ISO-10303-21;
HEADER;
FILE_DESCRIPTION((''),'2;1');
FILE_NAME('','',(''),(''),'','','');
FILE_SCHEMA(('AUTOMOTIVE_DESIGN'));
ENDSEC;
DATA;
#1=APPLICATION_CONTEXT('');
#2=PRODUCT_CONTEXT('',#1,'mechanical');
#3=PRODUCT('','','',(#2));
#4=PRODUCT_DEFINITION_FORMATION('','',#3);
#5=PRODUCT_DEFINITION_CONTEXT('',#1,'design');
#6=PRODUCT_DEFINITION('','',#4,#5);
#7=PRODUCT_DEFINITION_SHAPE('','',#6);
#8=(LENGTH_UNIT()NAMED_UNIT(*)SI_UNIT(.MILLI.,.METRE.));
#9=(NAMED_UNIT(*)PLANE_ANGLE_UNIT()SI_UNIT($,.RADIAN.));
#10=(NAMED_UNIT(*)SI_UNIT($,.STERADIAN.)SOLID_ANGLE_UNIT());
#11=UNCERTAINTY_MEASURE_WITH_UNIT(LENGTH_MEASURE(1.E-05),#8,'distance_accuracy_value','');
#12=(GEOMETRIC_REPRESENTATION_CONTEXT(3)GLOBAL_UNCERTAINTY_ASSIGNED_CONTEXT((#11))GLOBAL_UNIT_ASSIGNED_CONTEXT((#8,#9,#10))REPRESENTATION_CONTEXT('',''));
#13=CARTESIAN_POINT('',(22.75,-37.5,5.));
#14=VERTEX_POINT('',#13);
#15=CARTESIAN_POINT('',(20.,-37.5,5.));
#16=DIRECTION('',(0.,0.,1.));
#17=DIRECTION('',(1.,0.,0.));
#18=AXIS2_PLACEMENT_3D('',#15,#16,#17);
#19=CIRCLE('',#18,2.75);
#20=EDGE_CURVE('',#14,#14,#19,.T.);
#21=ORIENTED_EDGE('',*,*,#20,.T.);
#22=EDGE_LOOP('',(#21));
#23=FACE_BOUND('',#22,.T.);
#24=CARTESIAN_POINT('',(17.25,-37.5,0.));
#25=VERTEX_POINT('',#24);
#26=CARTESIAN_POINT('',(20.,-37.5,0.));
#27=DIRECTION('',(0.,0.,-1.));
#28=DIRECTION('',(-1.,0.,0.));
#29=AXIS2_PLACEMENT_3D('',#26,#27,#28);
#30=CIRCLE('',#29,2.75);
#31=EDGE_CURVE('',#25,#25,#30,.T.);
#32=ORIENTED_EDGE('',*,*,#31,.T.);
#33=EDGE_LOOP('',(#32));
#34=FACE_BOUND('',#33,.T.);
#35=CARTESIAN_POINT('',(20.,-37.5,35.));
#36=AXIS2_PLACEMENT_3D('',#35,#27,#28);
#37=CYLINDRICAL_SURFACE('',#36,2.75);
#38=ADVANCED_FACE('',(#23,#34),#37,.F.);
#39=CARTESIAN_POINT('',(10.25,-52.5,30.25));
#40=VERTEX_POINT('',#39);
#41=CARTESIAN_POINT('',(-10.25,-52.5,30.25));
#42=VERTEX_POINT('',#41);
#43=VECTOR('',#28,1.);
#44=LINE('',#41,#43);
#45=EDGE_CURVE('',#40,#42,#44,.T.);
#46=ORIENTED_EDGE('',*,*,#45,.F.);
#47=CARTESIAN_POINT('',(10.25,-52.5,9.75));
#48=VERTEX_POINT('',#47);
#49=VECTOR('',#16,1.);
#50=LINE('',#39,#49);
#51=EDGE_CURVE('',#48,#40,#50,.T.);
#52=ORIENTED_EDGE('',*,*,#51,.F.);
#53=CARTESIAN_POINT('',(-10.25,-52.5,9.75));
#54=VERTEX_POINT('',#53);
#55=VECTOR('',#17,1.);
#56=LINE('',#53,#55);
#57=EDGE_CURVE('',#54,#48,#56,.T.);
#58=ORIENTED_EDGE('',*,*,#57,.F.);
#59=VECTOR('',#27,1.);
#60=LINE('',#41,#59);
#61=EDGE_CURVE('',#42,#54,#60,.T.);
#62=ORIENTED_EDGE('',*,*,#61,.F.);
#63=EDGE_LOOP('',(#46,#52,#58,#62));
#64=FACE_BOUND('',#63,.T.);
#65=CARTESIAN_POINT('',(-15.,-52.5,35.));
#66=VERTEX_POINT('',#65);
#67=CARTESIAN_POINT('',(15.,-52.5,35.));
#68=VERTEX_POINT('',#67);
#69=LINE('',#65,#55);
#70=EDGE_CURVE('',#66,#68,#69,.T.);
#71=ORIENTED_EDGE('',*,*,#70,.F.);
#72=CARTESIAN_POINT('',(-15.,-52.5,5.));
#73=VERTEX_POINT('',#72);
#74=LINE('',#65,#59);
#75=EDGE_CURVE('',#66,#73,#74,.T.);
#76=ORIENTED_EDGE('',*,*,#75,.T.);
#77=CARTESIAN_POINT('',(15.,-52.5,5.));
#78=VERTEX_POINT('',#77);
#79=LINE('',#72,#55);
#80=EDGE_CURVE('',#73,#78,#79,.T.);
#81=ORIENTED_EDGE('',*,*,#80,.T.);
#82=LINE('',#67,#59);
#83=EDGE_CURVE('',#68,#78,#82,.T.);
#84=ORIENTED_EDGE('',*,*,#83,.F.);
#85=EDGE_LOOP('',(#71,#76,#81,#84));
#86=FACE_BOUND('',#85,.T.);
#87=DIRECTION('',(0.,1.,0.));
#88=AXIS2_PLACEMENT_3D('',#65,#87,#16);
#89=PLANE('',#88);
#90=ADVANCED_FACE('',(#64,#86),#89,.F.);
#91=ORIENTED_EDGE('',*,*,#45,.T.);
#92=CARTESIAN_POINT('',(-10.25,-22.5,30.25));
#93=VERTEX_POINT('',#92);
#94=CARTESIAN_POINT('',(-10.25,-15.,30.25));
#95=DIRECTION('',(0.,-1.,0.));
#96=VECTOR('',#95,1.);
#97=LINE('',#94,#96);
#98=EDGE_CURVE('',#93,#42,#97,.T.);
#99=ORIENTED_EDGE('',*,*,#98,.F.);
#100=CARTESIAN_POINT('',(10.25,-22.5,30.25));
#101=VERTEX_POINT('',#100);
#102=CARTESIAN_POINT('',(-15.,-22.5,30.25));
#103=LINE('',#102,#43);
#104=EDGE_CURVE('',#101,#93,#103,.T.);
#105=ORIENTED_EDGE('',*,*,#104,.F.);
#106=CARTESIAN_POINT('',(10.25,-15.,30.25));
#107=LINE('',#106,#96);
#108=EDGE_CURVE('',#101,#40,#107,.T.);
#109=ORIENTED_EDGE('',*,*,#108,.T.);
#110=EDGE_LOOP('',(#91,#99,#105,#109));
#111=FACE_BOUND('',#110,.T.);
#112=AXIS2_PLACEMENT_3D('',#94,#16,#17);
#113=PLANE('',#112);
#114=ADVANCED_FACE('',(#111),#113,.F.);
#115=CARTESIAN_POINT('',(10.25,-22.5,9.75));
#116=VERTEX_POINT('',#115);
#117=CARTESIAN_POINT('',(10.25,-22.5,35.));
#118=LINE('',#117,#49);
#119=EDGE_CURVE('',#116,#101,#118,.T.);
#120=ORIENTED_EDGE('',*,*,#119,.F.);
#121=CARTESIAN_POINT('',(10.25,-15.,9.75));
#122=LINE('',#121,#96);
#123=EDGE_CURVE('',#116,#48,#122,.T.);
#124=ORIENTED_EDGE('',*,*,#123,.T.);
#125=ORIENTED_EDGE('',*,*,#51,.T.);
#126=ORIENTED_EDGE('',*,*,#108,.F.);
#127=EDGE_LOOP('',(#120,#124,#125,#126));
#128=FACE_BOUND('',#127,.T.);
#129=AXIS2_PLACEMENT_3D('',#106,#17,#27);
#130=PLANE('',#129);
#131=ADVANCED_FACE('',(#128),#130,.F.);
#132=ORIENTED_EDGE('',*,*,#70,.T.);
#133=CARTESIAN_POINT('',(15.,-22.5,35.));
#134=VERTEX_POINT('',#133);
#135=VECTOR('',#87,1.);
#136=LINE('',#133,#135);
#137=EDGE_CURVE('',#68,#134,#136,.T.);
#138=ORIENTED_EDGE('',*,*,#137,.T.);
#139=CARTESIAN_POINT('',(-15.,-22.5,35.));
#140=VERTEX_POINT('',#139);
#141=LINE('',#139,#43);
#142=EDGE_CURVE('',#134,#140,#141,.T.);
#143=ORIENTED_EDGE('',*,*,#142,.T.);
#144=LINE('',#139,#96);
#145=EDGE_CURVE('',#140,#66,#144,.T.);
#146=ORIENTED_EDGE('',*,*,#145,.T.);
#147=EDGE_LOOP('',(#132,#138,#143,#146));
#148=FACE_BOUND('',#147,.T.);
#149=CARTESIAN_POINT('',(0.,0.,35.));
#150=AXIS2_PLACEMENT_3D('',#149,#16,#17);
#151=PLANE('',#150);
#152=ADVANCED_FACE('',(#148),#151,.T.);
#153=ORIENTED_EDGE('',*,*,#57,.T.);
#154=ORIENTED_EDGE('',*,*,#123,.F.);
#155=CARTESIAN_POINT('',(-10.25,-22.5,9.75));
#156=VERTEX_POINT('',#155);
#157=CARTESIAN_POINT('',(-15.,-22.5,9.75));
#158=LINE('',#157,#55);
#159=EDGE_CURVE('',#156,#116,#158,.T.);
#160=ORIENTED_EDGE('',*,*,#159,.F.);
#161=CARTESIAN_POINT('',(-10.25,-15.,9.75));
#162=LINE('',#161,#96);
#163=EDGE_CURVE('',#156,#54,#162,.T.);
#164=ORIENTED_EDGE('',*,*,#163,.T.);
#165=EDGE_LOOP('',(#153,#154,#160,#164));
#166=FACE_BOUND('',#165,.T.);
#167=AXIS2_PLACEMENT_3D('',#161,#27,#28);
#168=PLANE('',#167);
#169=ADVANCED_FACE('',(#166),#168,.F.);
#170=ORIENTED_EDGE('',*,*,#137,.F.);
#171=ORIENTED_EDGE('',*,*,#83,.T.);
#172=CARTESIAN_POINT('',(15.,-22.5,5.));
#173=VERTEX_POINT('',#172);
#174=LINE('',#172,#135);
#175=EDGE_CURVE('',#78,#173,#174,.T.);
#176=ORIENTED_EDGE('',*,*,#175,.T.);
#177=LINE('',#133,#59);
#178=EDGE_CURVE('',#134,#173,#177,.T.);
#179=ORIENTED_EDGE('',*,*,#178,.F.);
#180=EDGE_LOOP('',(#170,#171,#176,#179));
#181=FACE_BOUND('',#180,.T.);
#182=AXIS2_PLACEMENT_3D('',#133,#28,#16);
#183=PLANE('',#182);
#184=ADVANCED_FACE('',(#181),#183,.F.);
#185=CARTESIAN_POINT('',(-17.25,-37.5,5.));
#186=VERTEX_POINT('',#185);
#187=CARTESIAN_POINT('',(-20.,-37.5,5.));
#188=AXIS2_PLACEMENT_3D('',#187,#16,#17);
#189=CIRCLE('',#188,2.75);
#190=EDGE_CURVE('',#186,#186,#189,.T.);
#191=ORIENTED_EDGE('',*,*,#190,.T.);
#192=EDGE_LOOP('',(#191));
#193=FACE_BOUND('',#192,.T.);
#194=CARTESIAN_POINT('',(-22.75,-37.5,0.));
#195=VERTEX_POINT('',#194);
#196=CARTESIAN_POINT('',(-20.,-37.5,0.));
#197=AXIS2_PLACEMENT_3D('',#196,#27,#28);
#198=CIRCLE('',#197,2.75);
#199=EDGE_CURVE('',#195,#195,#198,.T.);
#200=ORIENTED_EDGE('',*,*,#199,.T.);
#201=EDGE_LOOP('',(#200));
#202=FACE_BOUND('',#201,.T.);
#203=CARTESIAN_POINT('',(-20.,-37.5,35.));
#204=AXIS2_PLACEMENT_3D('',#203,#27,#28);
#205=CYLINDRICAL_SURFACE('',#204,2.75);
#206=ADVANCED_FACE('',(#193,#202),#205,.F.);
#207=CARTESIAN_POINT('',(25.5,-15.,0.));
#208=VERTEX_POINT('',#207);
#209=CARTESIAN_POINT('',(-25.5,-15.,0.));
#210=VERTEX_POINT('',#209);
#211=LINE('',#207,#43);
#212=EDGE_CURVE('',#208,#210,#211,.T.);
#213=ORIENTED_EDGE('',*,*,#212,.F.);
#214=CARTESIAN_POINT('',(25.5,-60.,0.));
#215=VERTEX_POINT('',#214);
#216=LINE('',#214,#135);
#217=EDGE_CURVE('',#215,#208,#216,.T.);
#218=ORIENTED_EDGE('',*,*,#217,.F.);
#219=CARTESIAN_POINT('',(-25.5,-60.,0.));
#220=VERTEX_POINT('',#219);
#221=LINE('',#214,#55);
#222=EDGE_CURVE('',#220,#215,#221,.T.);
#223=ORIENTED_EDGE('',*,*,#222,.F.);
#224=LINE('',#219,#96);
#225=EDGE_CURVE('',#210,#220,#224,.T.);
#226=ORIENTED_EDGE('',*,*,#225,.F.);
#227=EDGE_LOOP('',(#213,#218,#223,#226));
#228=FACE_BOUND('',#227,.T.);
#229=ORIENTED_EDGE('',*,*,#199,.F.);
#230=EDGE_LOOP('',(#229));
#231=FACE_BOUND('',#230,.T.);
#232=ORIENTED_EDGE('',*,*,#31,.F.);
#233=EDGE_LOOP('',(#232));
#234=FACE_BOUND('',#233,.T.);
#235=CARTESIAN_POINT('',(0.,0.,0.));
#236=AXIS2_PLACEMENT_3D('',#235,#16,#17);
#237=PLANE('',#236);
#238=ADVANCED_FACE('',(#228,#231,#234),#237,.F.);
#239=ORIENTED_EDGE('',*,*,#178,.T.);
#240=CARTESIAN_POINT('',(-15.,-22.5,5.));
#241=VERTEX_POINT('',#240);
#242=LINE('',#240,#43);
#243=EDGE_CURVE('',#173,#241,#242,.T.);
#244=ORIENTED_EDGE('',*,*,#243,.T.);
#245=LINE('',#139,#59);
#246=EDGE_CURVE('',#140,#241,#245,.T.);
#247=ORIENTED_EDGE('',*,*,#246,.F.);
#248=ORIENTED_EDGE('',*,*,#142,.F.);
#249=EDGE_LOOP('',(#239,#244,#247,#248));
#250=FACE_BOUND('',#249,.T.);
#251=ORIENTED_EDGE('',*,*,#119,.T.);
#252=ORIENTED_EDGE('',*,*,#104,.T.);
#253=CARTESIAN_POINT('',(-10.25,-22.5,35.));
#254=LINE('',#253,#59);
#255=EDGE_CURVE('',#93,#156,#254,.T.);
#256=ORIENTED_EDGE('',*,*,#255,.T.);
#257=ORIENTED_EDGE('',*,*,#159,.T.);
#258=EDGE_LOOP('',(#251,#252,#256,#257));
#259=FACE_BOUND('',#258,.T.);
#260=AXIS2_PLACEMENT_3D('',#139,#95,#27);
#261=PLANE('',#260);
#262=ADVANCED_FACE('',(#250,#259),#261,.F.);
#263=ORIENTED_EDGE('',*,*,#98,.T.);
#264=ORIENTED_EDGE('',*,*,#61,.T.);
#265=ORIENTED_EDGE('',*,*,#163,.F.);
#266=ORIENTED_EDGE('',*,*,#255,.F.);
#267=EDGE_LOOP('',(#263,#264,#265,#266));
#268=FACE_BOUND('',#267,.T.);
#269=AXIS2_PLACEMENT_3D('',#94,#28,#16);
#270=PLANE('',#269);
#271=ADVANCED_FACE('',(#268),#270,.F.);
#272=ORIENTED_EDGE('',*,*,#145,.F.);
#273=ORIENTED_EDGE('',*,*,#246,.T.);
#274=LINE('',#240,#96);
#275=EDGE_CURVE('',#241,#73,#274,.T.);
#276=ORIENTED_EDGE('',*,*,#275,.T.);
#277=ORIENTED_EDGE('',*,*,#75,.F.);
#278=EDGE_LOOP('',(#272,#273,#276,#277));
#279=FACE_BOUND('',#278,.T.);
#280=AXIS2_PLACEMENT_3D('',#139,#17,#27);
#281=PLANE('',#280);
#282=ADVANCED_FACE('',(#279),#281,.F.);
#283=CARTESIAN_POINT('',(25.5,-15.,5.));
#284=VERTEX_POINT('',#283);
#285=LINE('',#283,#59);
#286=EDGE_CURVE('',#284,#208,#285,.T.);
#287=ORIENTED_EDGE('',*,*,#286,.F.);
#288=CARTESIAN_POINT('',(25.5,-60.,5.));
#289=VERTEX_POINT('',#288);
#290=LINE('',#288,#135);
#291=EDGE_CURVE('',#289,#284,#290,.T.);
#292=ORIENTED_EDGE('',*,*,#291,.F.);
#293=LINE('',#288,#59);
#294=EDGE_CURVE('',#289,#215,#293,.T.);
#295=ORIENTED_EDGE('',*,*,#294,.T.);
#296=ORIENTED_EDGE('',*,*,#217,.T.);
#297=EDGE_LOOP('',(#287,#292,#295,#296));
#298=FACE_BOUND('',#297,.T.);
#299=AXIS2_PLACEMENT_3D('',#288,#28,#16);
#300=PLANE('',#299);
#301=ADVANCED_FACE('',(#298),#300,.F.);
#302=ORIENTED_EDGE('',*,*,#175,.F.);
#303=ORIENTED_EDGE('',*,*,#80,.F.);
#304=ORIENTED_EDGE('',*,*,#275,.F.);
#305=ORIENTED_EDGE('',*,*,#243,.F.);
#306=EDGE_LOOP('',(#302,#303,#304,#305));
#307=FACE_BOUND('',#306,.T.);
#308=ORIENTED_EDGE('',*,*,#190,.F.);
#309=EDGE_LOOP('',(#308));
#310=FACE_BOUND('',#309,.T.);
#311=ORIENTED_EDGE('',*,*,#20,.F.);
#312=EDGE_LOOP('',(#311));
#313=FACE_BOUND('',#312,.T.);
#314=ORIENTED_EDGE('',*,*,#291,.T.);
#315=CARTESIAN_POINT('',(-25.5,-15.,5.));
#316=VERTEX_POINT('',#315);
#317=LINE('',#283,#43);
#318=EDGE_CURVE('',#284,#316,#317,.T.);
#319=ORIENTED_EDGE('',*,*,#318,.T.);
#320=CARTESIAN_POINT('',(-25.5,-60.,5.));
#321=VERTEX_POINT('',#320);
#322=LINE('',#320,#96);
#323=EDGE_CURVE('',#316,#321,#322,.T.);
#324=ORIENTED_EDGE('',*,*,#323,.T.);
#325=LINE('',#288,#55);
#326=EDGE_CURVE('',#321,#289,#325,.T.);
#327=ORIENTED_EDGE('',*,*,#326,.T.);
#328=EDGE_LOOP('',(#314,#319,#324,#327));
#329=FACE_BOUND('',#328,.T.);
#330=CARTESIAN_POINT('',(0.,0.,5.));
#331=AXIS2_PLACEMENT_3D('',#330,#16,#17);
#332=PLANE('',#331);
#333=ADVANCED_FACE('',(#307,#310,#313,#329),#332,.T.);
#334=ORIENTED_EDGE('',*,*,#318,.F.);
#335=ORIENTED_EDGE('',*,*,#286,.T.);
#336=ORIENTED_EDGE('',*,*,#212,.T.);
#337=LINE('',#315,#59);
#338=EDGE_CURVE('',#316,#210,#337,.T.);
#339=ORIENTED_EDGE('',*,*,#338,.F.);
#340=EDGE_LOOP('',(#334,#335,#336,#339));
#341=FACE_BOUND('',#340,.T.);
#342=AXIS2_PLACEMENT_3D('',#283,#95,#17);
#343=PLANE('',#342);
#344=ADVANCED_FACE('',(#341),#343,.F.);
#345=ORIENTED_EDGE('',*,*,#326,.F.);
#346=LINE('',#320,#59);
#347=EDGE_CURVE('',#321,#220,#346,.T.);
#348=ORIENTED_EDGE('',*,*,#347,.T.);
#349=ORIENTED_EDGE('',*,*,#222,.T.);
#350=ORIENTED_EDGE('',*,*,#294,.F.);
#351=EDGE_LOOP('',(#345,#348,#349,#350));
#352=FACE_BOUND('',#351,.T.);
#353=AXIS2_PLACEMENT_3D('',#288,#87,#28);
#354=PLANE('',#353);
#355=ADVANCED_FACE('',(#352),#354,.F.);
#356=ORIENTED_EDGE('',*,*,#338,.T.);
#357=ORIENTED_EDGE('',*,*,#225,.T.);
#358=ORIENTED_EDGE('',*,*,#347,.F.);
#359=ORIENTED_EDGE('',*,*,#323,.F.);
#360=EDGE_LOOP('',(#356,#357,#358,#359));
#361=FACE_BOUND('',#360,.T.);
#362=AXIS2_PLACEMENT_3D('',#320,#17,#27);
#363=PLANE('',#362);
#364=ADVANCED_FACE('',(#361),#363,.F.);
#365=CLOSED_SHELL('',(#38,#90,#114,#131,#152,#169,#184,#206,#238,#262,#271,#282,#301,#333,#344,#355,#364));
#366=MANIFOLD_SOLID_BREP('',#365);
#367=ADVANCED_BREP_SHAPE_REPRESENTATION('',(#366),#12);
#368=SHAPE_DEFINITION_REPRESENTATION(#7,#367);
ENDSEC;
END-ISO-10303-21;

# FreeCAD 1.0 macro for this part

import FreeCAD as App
import Part
import Sketcher


def add_polygon(sketch, points):
    """Adds a closed chain of lines whose ends are joined by coincident constraints."""
    first, n = sketch.GeometryCount, len(points)
    for a, b in zip(points, points[1:] + points[:1]):
        sketch.addGeometry(Part.LineSegment(App.Vector(*a, 0), App.Vector(*b, 0)), False)
    for i in range(n):
        sketch.addConstraint(Sketcher.Constraint("Coincident", first + i, 2, first + (i + 1) % n, 1))

doc = App.newDocument("Part")
params = doc.addObject("Spreadsheet::Sheet", "Params")
for row, (alias, value) in enumerate([
    ("sketch1_width", "51 mm"),
    ("sketch1_height", "45 mm"),
    ("pad1_length", "5 mm"),
    ("sketch2_width", "30 mm"),
    ("pad2_length", "30 mm"),
    ("sketch3_width", "20.5 mm"),
    ("sketch4_diameter", "5.5 mm"),
], start=1):
    params.set(f"A{row}", alias)
    params.set(f"B{row}", "=" + value)
    params.setAlias(f"B{row}", alias)

body = doc.addObject("PartDesign::Body", "Body")

# Sketch on XY plane
sketch1 = doc.addObject("Sketcher::SketchObject", "Sketch")
body.addObject(sketch1)
sketch1.AttachmentSupport = (doc.XY_Plane, [""])
sketch1.MapMode = "FlatFace"
add_polygon(sketch1, [(-26, -15), (-26, -60), (26, -60), (26, -15)])  # lines 0-3
sketch1.addConstraint(Sketcher.Constraint("Vertical", 0))
sketch1.addConstraint(Sketcher.Constraint("Horizontal", 1))
sketch1.addConstraint(Sketcher.Constraint("Vertical", 2))
sketch1.addConstraint(Sketcher.Constraint("Horizontal", 3))
sketch1.addConstraint(Sketcher.Constraint("DistanceX", 1, 1, 1, 2, 51.0))
sketch1.addConstraint(Sketcher.Constraint("DistanceY", 0, 2, 0, 1, 45.0))
sketch1.addConstraint(Sketcher.Constraint("DistanceY", 0, 2, -1, 1, 60.0))
sketch1.addConstraint(Sketcher.Constraint("DistanceX", 0, 2, -1, 1, 25.5))
sketch1.setExpression("Constraints[8]", "Params.sketch1_width")
sketch1.setExpression("Constraints[9]", "Params.sketch1_height")
pad1 = doc.addObject("PartDesign::Pad", "Pad")
body.addObject(pad1)
pad1.Profile = sketch1
pad1.setExpression("Length", "Params.pad1_length")

# Sketch on XY plane
sketch2 = doc.addObject("Sketcher::SketchObject", "Sketch001")
body.addObject(sketch2)
sketch2.AttachmentSupport = (doc.XY_Plane, [""])
sketch2.MapMode = "FlatFace"
sketch2.AttachmentOffset = App.Placement(App.Vector(0, 0, 5), App.Rotation())
add_polygon(sketch2, [(-15, -22), (-15, -52), (15, -52), (15, -22)])  # lines 0-3
sketch2.addConstraint(Sketcher.Constraint("Vertical", 0))
sketch2.addConstraint(Sketcher.Constraint("Horizontal", 1))
sketch2.addConstraint(Sketcher.Constraint("Vertical", 2))
sketch2.addConstraint(Sketcher.Constraint("Horizontal", 3))
sketch2.addConstraint(Sketcher.Constraint("Equal", 3, 0))
sketch2.addConstraint(Sketcher.Constraint("DistanceX", 1, 1, 1, 2, 30.0))
sketch2.addConstraint(Sketcher.Constraint("DistanceX", 0, 2, -1, 1, 15.0))
sketch2.addConstraint(Sketcher.Constraint("DistanceY", 0, 2, -1, 1, 52.5))
sketch2.setExpression("Constraints[9]", "Params.sketch2_width")
pad2 = doc.addObject("PartDesign::Pad", "Pad001")
body.addObject(pad2)
pad2.Profile = sketch2
pad2.setExpression("Length", "Params.pad2_length")

# Sketch on XZ plane
sketch3 = doc.addObject("Sketcher::SketchObject", "Sketch002")
body.addObject(sketch3)
sketch3.AttachmentSupport = (doc.XZ_Plane, [""])
sketch3.MapMode = "FlatFace"
sketch3.AttachmentOffset = App.Placement(App.Vector(0, 0, 52.5), App.Rotation())
add_polygon(sketch3, [(-10, 30), (-10, 10), (10, 10), (10, 30)])  # lines 0-3
sketch3.addConstraint(Sketcher.Constraint("Vertical", 0))
sketch3.addConstraint(Sketcher.Constraint("Horizontal", 1))
sketch3.addConstraint(Sketcher.Constraint("Vertical", 2))
sketch3.addConstraint(Sketcher.Constraint("Horizontal", 3))
sketch3.addConstraint(Sketcher.Constraint("Equal", 3, 0))
sketch3.addConstraint(Sketcher.Constraint("DistanceX", 1, 1, 1, 2, 20.5))
sketch3.addConstraint(Sketcher.Constraint("DistanceX", 0, 2, -1, 1, 10.25))
sketch3.addConstraint(Sketcher.Constraint("DistanceY", -1, 1, 0, 2, 9.75))
sketch3.setExpression("Constraints[9]", "Params.sketch3_width")
pocket1 = doc.addObject("PartDesign::Pocket", "Pocket")
body.addObject(pocket1)
pocket1.Profile = sketch3
pocket1.Type = "ThroughAll"

# Sketch on XY plane
sketch4 = doc.addObject("Sketcher::SketchObject", "Sketch003")
body.addObject(sketch4)
sketch4.AttachmentSupport = (doc.XY_Plane, [""])
sketch4.MapMode = "FlatFace"
sketch4.addGeometry(Part.Circle(App.Vector(-20, -37.5, 0), App.Vector(0, 0, 1), 2.8), False)
sketch4.addGeometry(Part.Circle(App.Vector(20, -37.5, 0), App.Vector(0, 0, 1), 2.8), False)
sketch4.addConstraint(Sketcher.Constraint("Equal", 0, 1))
sketch4.addConstraint(Sketcher.Constraint("Symmetric", 0, 3, 1, 3, -2))
sketch4.addConstraint(Sketcher.Constraint("Diameter", 0, 5.5))
sketch4.addConstraint(Sketcher.Constraint("DistanceX", 0, 3, -1, 1, 20.0))
sketch4.addConstraint(Sketcher.Constraint("DistanceY", 0, 3, -1, 1, 37.5))
sketch4.setExpression("Constraints[2]", "Params.sketch4_diameter")
pocket2 = doc.addObject("PartDesign::Pocket", "Pocket001")
body.addObject(pocket2)
pocket2.Profile = sketch4
pocket2.Type = "ThroughAll"
pocket2.Reversed = True

doc.recompute()
